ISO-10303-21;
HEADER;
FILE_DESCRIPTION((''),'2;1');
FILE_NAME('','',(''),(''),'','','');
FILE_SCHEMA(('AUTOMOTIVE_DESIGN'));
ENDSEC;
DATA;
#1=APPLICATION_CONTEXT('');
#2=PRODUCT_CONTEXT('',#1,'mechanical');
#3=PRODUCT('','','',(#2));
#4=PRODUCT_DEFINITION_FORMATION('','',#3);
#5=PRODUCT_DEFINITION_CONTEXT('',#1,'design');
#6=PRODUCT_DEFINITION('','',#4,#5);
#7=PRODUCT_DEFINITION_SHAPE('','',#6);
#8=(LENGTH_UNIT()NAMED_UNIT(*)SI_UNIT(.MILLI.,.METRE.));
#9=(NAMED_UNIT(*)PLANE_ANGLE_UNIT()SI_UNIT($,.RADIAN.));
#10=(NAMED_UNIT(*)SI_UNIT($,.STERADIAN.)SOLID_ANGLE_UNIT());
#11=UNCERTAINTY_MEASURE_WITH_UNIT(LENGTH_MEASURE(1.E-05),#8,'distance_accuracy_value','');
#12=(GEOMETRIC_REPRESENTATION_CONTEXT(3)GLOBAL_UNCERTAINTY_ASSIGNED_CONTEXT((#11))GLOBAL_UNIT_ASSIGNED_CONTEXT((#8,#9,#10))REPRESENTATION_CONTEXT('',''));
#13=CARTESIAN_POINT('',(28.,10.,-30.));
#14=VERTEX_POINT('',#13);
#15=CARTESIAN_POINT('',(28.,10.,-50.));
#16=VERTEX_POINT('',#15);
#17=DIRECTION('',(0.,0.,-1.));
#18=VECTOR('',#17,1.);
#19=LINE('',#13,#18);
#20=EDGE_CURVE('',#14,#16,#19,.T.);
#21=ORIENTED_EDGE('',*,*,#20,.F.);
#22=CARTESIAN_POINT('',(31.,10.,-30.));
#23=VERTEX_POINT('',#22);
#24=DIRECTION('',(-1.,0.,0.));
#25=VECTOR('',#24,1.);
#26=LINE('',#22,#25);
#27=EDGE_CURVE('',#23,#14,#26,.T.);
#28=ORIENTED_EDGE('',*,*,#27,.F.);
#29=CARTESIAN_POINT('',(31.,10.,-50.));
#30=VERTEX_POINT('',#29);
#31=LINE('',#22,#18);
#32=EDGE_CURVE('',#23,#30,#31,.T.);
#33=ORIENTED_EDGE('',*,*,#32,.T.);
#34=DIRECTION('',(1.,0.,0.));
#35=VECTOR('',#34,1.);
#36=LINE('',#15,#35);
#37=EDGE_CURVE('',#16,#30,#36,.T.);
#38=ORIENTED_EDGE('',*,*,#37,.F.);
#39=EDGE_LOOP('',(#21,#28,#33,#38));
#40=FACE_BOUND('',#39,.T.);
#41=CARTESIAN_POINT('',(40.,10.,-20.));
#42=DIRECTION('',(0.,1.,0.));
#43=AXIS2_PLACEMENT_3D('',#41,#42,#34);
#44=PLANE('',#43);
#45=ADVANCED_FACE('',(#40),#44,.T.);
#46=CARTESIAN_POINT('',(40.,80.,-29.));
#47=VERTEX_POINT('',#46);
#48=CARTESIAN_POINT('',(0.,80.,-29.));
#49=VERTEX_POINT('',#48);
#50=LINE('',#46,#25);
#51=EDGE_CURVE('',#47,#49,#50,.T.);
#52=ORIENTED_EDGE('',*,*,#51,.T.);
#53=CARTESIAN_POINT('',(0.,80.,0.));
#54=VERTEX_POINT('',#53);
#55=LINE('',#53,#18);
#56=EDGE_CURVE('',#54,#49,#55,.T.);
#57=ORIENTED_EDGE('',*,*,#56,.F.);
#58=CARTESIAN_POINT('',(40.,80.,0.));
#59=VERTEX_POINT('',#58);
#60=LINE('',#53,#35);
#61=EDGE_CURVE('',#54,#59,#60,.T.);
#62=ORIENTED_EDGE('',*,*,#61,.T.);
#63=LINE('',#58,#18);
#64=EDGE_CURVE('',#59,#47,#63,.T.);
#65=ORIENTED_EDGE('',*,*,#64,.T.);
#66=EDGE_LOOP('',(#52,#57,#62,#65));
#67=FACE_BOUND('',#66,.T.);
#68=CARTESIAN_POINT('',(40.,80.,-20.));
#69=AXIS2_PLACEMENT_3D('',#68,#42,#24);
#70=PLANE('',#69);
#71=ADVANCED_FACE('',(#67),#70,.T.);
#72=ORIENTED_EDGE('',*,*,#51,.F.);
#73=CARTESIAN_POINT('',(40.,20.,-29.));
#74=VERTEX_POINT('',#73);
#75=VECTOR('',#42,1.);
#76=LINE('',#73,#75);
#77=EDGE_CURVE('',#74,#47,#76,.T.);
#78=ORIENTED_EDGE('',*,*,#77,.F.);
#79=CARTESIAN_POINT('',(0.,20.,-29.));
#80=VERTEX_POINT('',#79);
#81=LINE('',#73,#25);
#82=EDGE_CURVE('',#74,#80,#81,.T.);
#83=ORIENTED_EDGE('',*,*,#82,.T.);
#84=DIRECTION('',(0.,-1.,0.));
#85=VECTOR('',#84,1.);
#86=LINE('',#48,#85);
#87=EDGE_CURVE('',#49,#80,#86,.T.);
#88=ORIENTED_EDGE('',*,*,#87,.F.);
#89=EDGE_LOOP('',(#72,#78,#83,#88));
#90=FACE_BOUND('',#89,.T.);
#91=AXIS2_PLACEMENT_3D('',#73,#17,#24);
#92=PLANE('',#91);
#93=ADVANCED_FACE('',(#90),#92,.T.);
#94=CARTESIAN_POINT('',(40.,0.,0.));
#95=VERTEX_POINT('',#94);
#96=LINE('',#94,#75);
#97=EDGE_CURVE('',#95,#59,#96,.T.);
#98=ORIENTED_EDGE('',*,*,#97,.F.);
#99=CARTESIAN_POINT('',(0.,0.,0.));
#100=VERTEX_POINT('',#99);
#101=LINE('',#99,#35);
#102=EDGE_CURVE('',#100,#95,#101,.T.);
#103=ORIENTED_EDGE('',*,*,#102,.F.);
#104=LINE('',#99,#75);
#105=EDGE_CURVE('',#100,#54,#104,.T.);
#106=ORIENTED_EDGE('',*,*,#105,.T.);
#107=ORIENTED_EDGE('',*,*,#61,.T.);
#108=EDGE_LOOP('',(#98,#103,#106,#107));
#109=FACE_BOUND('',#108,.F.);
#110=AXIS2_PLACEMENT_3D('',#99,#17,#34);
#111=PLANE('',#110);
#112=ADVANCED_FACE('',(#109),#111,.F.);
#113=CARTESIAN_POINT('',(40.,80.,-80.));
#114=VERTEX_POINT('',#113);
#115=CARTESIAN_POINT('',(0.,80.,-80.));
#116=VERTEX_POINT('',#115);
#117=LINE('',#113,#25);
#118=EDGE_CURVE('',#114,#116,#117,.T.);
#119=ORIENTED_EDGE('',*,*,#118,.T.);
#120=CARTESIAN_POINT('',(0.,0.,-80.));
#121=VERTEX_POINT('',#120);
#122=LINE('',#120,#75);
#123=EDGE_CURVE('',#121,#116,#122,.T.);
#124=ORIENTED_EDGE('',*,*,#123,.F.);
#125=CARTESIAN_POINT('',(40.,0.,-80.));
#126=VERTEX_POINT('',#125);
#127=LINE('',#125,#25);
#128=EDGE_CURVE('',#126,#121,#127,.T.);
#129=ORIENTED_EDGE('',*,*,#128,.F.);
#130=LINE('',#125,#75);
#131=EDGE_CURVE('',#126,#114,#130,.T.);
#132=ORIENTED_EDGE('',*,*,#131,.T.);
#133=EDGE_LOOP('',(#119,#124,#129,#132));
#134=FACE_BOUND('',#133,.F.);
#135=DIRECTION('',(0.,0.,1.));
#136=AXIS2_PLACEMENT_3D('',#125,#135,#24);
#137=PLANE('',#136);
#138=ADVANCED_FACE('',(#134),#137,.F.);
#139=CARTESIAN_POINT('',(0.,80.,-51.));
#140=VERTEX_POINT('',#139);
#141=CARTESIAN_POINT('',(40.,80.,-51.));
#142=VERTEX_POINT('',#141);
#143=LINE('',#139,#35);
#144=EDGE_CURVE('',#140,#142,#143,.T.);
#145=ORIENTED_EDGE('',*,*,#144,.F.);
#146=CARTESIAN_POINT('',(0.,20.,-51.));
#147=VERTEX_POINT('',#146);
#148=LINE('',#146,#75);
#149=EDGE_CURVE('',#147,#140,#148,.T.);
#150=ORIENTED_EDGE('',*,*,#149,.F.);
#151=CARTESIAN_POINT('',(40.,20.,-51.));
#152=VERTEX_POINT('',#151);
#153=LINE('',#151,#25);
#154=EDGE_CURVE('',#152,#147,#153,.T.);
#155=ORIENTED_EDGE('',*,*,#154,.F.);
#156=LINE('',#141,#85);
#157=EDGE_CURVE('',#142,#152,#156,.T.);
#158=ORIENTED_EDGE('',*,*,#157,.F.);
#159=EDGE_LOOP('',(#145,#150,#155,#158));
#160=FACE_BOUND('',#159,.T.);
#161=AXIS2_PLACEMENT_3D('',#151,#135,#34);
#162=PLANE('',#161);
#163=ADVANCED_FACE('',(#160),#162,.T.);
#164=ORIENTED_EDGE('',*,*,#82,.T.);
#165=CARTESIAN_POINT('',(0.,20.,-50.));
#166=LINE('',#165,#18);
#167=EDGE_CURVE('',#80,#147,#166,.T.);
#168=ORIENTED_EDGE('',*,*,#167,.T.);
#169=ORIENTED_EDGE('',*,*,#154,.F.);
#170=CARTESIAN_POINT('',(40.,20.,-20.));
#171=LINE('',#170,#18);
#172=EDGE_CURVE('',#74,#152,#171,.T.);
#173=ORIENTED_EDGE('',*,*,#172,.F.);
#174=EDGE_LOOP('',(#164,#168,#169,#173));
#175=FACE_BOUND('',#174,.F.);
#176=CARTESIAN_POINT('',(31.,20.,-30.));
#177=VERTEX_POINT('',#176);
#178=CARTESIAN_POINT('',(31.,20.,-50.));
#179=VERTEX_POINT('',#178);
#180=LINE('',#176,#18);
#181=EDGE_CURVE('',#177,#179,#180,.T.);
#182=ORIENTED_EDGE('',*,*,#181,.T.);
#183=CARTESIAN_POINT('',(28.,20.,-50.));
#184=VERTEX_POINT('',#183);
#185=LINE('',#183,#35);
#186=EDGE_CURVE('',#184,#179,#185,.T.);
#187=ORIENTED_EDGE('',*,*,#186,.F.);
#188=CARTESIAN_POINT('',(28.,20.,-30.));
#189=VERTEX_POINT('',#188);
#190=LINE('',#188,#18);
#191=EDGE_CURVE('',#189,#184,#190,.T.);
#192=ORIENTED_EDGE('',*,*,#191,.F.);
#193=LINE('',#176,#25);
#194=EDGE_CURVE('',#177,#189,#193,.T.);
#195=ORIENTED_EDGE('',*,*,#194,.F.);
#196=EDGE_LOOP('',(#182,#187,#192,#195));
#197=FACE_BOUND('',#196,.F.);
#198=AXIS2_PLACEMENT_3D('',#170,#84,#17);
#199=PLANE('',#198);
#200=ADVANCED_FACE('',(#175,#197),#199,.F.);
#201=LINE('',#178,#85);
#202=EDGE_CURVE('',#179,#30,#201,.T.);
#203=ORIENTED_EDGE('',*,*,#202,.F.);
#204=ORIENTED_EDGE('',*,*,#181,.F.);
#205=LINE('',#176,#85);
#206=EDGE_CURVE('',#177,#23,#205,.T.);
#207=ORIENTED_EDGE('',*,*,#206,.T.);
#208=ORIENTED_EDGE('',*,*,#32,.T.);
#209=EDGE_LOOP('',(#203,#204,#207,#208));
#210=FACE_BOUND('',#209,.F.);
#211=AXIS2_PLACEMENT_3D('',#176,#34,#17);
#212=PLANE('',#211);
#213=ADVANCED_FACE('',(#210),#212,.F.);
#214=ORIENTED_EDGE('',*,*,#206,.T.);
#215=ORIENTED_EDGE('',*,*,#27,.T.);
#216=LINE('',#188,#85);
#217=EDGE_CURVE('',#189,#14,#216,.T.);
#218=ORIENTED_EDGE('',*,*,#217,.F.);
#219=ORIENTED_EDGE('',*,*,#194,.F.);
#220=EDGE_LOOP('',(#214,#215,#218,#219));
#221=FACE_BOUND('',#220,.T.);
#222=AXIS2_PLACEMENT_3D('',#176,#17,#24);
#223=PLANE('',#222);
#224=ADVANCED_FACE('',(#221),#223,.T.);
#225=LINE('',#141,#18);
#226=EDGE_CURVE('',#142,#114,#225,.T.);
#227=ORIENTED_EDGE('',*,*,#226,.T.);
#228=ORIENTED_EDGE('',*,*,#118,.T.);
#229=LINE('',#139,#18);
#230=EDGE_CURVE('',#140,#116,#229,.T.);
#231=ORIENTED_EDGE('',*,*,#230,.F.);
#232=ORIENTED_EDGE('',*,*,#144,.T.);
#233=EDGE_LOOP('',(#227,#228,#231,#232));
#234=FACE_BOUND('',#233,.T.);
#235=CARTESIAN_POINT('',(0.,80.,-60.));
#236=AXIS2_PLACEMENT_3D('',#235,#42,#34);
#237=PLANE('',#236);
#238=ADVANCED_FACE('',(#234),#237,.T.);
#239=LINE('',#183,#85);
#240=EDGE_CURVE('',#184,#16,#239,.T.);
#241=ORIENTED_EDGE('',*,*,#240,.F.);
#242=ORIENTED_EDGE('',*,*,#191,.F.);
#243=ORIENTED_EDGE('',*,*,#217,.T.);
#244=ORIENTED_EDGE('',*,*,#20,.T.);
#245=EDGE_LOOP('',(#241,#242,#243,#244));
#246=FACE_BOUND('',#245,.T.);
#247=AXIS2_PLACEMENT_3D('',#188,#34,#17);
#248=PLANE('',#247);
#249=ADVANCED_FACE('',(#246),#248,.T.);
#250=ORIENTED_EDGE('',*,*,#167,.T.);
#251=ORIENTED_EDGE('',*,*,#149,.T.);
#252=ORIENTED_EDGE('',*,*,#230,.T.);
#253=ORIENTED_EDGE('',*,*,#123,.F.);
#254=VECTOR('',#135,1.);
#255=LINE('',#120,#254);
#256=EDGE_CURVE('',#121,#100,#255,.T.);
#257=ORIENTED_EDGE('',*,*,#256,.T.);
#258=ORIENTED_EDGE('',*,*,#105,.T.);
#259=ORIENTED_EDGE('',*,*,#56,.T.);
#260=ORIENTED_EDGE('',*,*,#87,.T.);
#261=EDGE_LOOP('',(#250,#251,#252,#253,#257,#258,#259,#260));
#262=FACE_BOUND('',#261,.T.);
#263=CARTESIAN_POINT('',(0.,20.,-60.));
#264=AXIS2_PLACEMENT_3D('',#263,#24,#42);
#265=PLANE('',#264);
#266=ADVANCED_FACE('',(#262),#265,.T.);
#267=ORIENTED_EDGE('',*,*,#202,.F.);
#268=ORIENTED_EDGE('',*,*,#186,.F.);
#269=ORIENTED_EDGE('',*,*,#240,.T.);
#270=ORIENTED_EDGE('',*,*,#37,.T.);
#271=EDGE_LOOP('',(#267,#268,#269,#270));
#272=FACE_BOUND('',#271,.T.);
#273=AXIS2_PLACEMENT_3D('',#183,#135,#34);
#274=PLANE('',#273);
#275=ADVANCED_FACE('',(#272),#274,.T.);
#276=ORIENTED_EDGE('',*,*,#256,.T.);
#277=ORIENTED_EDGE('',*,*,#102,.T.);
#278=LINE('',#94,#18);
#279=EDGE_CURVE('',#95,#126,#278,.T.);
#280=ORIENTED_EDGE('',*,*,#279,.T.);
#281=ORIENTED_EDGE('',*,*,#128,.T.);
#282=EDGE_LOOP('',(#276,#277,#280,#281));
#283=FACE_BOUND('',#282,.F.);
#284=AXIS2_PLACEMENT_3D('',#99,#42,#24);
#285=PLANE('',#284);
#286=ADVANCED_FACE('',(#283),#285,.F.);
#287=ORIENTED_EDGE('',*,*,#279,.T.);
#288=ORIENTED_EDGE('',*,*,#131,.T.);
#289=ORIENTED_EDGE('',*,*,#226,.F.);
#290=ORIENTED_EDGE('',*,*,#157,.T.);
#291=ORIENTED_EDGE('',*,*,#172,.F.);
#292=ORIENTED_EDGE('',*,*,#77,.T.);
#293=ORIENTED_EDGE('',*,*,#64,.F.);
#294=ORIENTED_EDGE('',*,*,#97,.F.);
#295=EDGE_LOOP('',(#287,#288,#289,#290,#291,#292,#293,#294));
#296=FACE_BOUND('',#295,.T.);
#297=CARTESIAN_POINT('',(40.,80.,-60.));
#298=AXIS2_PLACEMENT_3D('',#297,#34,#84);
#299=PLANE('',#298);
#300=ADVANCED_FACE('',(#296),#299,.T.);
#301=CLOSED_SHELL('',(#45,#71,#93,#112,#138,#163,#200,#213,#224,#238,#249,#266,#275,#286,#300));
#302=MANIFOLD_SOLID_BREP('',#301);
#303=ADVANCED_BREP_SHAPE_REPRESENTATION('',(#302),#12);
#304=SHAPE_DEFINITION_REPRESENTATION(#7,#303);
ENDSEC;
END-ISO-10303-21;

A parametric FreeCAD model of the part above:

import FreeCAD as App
import Part
import Sketcher
Q = App.Units.Quantity


def add_polygon(sketch, points):
    """Adds a closed chain of lines whose ends are joined by coincident constraints."""
    first, n = sketch.GeometryCount, len(points)
    for a, b in zip(points, points[1:] + points[:1]):
        sketch.addGeometry(Part.LineSegment(App.Vector(*a, 0), App.Vector(*b, 0)), False)
    for i in range(n):
        sketch.addConstraint(Sketcher.Constraint("Coincident", first + i, 2, first + (i + 1) % n, 1))

doc = App.newDocument("Part")
params = doc.addObject("Spreadsheet::Sheet", "Params")
for row, (alias, value) in enumerate([
    ("sketch1_width", "40 mm"),
    ("sketch1_height", "80 mm"),
    ("pad1_length", "80 mm"),
    ("sketch2_width", "60 mm"),
    ("sketch2_height", "40 mm"),
    ("pocket1_length", "80 mm"),
    ("sketch3_width", "3 mm"),
    ("sketch3_height", "20 mm"),
    ("pocket2_length", "10 mm"),
    ("sketch4_width", "40 mm"),
    ("sketch4_height", "60 mm"),
    ("pad2_length", "9 mm"),
    ("sketch5_width", "40 mm"),
    ("sketch5_height", "60 mm"),
    ("pad3_length", "9 mm"),
], start=1):
    params.set(f"A{row}", alias)
    params.set(f"B{row}", "=" + value)
    params.setAlias(f"B{row}", alias)

body = doc.addObject("PartDesign::Body", "Body")

sketch1 = body.newObject("Sketcher::SketchObject", "Sketch")
sketch1.AttachmentSupport = (doc.getObject("XZ_Plane"), [""])
sketch1.MapMode = "FlatFace"
add_polygon(sketch1, [(0, -80), (0, 0), (40, 0), (40, -80)])
sketch1.addConstraint(Sketcher.Constraint("Vertical", 0))
sketch1.addConstraint(Sketcher.Constraint("Horizontal", 1))
sketch1.addConstraint(Sketcher.Constraint("Vertical", 2))
sketch1.addConstraint(Sketcher.Constraint("Horizontal", 3))
sketch1.addConstraint(Sketcher.Constraint("Coincident", 0, 2, -1, 1))
sketch1.addConstraint(Sketcher.Constraint("DistanceX", 1, 1, 1, 2, Q("40 mm")))
sketch1.addConstraint(Sketcher.Constraint("DistanceY", 0, 1, 0, 2, Q("80 mm")))
sketch1.setExpression("Constraints[9]", "Params.sketch1_width")
sketch1.setExpression("Constraints[10]", "Params.sketch1_height")
pad1 = body.newObject("PartDesign::Pad", "Pad")
pad1.Profile = sketch1
pad1.setExpression("Length", "Params.pad1_length")
pad1.Reversed = True

sketch2 = body.newObject("Sketcher::SketchObject", "Sketch001")
sketch2.AttachmentSupport = (doc.getObject("YZ_Plane"), [""])
sketch2.MapMode = "FlatFace"
sketch2.AttachmentOffset = App.Placement(App.Vector(0, 0, 40), App.Rotation())
add_polygon(sketch2, [(80, -60), (80, -20), (20, -20), (20, -60)])
sketch2.addConstraint(Sketcher.Constraint("Vertical", 0))
sketch2.addConstraint(Sketcher.Constraint("Horizontal", 1))
sketch2.addConstraint(Sketcher.Constraint("Vertical", 2))
sketch2.addConstraint(Sketcher.Constraint("Horizontal", 3))
sketch2.addConstraint(Sketcher.Constraint("DistanceY", 0, 2, -1, 1, Q("20 mm")))
sketch2.addConstraint(Sketcher.Constraint("DistanceX", -1, 1, 1, 2, Q("20 mm")))
sketch2.addConstraint(Sketcher.Constraint("DistanceX", 1, 2, 1, 1, Q("60 mm")))
sketch2.addConstraint(Sketcher.Constraint("DistanceY", 0, 1, 0, 2, Q("40 mm")))
sketch2.setExpression("Constraints[10]", "Params.sketch2_width")
sketch2.setExpression("Constraints[11]", "Params.sketch2_height")
pocket1 = body.newObject("PartDesign::Pocket", "Pocket")
pocket1.Profile = sketch2
pocket1.setExpression("Length", "Params.pocket1_length")

sketch3 = body.newObject("Sketcher::SketchObject", "Sketch002")
sketch3.AttachmentSupport = (doc.getObject("XZ_Plane"), [""])
sketch3.MapMode = "FlatFace"
sketch3.AttachmentOffset = App.Placement(App.Vector(0, 0, -20), App.Rotation())
add_polygon(sketch3, [(28, -30), (31, -30), (31, -50), (28, -50)])
sketch3.addConstraint(Sketcher.Constraint("Horizontal", 0))
sketch3.addConstraint(Sketcher.Constraint("Vertical", 1))
sketch3.addConstraint(Sketcher.Constraint("Horizontal", 2))
sketch3.addConstraint(Sketcher.Constraint("Vertical", 3))
sketch3.addConstraint(Sketcher.Constraint("DistanceX", 0, 1, 0, 2, Q("3 mm")))
sketch3.addConstraint(Sketcher.Constraint("DistanceY", 1, 2, 1, 1, Q("20 mm")))
sketch3.addConstraint(Sketcher.Constraint("DistanceX", -1, 1, 0, 2, Q("31 mm")))
sketch3.addConstraint(Sketcher.Constraint("DistanceY", 0, 2, -1, 1, Q("30 mm")))
sketch3.setExpression("Constraints[8]", "Params.sketch3_width")
sketch3.setExpression("Constraints[9]", "Params.sketch3_height")
pocket2 = body.newObject("PartDesign::Pocket", "Pocket001")
pocket2.Profile = sketch3
pocket2.setExpression("Length", "Params.pocket2_length")
pocket2.Reversed = True

sketch4 = body.newObject("Sketcher::SketchObject", "Sketch003")
sketch4.AttachmentSupport = (doc.getObject("XY_Plane"), [""])
sketch4.MapMode = "FlatFace"
sketch4.AttachmentOffset = App.Placement(App.Vector(0, 0, -20), App.Rotation())
add_polygon(sketch4, [(0, 20), (0, 80), (40, 80), (40, 20)])
sketch4.addConstraint(Sketcher.Constraint("Vertical", 0))
sketch4.addConstraint(Sketcher.Constraint("Horizontal", 1))
sketch4.addConstraint(Sketcher.Constraint("Vertical", 2))
sketch4.addConstraint(Sketcher.Constraint("Horizontal", 3))
sketch4.addConstraint(Sketcher.Constraint("PointOnObject", 0, 2, -2))
sketch4.addConstraint(Sketcher.Constraint("DistanceX", 1, 1, 1, 2, Q("40 mm")))
sketch4.addConstraint(Sketcher.Constraint("DistanceY", 0, 1, 0, 2, Q("60 mm")))
sketch4.addConstraint(Sketcher.Constraint("DistanceY", -1, 1, 0, 2, Q("80 mm")))
sketch4.setExpression("Constraints[9]", "Params.sketch4_width")
sketch4.setExpression("Constraints[10]", "Params.sketch4_height")
pad2 = body.newObject("PartDesign::Pad", "Pad001")
pad2.Profile = sketch4
pad2.setExpression("Length", "Params.pad2_length")
pad2.Reversed = True

sketch5 = body.newObject("Sketcher::SketchObject", "Sketch004")
sketch5.AttachmentSupport = (doc.getObject("XY_Plane"), [""])
sketch5.MapMode = "FlatFace"
sketch5.AttachmentOffset = App.Placement(App.Vector(0, 0, -60), App.Rotation())
add_polygon(sketch5, [(0, 80), (0, 20), (40, 20), (40, 80)])
sketch5.addConstraint(Sketcher.Constraint("Vertical", 0))
sketch5.addConstraint(Sketcher.Constraint("Horizontal", 1))
sketch5.addConstraint(Sketcher.Constraint("Vertical", 2))
sketch5.addConstraint(Sketcher.Constraint("Horizontal", 3))
sketch5.addConstraint(Sketcher.Constraint("PointOnObject", 0, 2, -2))
sketch5.addConstraint(Sketcher.Constraint("DistanceX", 1, 1, 1, 2, Q("40 mm")))
sketch5.addConstraint(Sketcher.Constraint("DistanceY", 0, 2, 0, 1, Q("60 mm")))
sketch5.addConstraint(Sketcher.Constraint("DistanceY", -1, 1, 0, 2, Q("20 mm")))
sketch5.setExpression("Constraints[9]", "Params.sketch5_width")
sketch5.setExpression("Constraints[10]", "Params.sketch5_height")
pad3 = body.newObject("PartDesign::Pad", "Pad002")
pad3.Profile = sketch5
pad3.setExpression("Length", "Params.pad3_length")

doc.recompute()
